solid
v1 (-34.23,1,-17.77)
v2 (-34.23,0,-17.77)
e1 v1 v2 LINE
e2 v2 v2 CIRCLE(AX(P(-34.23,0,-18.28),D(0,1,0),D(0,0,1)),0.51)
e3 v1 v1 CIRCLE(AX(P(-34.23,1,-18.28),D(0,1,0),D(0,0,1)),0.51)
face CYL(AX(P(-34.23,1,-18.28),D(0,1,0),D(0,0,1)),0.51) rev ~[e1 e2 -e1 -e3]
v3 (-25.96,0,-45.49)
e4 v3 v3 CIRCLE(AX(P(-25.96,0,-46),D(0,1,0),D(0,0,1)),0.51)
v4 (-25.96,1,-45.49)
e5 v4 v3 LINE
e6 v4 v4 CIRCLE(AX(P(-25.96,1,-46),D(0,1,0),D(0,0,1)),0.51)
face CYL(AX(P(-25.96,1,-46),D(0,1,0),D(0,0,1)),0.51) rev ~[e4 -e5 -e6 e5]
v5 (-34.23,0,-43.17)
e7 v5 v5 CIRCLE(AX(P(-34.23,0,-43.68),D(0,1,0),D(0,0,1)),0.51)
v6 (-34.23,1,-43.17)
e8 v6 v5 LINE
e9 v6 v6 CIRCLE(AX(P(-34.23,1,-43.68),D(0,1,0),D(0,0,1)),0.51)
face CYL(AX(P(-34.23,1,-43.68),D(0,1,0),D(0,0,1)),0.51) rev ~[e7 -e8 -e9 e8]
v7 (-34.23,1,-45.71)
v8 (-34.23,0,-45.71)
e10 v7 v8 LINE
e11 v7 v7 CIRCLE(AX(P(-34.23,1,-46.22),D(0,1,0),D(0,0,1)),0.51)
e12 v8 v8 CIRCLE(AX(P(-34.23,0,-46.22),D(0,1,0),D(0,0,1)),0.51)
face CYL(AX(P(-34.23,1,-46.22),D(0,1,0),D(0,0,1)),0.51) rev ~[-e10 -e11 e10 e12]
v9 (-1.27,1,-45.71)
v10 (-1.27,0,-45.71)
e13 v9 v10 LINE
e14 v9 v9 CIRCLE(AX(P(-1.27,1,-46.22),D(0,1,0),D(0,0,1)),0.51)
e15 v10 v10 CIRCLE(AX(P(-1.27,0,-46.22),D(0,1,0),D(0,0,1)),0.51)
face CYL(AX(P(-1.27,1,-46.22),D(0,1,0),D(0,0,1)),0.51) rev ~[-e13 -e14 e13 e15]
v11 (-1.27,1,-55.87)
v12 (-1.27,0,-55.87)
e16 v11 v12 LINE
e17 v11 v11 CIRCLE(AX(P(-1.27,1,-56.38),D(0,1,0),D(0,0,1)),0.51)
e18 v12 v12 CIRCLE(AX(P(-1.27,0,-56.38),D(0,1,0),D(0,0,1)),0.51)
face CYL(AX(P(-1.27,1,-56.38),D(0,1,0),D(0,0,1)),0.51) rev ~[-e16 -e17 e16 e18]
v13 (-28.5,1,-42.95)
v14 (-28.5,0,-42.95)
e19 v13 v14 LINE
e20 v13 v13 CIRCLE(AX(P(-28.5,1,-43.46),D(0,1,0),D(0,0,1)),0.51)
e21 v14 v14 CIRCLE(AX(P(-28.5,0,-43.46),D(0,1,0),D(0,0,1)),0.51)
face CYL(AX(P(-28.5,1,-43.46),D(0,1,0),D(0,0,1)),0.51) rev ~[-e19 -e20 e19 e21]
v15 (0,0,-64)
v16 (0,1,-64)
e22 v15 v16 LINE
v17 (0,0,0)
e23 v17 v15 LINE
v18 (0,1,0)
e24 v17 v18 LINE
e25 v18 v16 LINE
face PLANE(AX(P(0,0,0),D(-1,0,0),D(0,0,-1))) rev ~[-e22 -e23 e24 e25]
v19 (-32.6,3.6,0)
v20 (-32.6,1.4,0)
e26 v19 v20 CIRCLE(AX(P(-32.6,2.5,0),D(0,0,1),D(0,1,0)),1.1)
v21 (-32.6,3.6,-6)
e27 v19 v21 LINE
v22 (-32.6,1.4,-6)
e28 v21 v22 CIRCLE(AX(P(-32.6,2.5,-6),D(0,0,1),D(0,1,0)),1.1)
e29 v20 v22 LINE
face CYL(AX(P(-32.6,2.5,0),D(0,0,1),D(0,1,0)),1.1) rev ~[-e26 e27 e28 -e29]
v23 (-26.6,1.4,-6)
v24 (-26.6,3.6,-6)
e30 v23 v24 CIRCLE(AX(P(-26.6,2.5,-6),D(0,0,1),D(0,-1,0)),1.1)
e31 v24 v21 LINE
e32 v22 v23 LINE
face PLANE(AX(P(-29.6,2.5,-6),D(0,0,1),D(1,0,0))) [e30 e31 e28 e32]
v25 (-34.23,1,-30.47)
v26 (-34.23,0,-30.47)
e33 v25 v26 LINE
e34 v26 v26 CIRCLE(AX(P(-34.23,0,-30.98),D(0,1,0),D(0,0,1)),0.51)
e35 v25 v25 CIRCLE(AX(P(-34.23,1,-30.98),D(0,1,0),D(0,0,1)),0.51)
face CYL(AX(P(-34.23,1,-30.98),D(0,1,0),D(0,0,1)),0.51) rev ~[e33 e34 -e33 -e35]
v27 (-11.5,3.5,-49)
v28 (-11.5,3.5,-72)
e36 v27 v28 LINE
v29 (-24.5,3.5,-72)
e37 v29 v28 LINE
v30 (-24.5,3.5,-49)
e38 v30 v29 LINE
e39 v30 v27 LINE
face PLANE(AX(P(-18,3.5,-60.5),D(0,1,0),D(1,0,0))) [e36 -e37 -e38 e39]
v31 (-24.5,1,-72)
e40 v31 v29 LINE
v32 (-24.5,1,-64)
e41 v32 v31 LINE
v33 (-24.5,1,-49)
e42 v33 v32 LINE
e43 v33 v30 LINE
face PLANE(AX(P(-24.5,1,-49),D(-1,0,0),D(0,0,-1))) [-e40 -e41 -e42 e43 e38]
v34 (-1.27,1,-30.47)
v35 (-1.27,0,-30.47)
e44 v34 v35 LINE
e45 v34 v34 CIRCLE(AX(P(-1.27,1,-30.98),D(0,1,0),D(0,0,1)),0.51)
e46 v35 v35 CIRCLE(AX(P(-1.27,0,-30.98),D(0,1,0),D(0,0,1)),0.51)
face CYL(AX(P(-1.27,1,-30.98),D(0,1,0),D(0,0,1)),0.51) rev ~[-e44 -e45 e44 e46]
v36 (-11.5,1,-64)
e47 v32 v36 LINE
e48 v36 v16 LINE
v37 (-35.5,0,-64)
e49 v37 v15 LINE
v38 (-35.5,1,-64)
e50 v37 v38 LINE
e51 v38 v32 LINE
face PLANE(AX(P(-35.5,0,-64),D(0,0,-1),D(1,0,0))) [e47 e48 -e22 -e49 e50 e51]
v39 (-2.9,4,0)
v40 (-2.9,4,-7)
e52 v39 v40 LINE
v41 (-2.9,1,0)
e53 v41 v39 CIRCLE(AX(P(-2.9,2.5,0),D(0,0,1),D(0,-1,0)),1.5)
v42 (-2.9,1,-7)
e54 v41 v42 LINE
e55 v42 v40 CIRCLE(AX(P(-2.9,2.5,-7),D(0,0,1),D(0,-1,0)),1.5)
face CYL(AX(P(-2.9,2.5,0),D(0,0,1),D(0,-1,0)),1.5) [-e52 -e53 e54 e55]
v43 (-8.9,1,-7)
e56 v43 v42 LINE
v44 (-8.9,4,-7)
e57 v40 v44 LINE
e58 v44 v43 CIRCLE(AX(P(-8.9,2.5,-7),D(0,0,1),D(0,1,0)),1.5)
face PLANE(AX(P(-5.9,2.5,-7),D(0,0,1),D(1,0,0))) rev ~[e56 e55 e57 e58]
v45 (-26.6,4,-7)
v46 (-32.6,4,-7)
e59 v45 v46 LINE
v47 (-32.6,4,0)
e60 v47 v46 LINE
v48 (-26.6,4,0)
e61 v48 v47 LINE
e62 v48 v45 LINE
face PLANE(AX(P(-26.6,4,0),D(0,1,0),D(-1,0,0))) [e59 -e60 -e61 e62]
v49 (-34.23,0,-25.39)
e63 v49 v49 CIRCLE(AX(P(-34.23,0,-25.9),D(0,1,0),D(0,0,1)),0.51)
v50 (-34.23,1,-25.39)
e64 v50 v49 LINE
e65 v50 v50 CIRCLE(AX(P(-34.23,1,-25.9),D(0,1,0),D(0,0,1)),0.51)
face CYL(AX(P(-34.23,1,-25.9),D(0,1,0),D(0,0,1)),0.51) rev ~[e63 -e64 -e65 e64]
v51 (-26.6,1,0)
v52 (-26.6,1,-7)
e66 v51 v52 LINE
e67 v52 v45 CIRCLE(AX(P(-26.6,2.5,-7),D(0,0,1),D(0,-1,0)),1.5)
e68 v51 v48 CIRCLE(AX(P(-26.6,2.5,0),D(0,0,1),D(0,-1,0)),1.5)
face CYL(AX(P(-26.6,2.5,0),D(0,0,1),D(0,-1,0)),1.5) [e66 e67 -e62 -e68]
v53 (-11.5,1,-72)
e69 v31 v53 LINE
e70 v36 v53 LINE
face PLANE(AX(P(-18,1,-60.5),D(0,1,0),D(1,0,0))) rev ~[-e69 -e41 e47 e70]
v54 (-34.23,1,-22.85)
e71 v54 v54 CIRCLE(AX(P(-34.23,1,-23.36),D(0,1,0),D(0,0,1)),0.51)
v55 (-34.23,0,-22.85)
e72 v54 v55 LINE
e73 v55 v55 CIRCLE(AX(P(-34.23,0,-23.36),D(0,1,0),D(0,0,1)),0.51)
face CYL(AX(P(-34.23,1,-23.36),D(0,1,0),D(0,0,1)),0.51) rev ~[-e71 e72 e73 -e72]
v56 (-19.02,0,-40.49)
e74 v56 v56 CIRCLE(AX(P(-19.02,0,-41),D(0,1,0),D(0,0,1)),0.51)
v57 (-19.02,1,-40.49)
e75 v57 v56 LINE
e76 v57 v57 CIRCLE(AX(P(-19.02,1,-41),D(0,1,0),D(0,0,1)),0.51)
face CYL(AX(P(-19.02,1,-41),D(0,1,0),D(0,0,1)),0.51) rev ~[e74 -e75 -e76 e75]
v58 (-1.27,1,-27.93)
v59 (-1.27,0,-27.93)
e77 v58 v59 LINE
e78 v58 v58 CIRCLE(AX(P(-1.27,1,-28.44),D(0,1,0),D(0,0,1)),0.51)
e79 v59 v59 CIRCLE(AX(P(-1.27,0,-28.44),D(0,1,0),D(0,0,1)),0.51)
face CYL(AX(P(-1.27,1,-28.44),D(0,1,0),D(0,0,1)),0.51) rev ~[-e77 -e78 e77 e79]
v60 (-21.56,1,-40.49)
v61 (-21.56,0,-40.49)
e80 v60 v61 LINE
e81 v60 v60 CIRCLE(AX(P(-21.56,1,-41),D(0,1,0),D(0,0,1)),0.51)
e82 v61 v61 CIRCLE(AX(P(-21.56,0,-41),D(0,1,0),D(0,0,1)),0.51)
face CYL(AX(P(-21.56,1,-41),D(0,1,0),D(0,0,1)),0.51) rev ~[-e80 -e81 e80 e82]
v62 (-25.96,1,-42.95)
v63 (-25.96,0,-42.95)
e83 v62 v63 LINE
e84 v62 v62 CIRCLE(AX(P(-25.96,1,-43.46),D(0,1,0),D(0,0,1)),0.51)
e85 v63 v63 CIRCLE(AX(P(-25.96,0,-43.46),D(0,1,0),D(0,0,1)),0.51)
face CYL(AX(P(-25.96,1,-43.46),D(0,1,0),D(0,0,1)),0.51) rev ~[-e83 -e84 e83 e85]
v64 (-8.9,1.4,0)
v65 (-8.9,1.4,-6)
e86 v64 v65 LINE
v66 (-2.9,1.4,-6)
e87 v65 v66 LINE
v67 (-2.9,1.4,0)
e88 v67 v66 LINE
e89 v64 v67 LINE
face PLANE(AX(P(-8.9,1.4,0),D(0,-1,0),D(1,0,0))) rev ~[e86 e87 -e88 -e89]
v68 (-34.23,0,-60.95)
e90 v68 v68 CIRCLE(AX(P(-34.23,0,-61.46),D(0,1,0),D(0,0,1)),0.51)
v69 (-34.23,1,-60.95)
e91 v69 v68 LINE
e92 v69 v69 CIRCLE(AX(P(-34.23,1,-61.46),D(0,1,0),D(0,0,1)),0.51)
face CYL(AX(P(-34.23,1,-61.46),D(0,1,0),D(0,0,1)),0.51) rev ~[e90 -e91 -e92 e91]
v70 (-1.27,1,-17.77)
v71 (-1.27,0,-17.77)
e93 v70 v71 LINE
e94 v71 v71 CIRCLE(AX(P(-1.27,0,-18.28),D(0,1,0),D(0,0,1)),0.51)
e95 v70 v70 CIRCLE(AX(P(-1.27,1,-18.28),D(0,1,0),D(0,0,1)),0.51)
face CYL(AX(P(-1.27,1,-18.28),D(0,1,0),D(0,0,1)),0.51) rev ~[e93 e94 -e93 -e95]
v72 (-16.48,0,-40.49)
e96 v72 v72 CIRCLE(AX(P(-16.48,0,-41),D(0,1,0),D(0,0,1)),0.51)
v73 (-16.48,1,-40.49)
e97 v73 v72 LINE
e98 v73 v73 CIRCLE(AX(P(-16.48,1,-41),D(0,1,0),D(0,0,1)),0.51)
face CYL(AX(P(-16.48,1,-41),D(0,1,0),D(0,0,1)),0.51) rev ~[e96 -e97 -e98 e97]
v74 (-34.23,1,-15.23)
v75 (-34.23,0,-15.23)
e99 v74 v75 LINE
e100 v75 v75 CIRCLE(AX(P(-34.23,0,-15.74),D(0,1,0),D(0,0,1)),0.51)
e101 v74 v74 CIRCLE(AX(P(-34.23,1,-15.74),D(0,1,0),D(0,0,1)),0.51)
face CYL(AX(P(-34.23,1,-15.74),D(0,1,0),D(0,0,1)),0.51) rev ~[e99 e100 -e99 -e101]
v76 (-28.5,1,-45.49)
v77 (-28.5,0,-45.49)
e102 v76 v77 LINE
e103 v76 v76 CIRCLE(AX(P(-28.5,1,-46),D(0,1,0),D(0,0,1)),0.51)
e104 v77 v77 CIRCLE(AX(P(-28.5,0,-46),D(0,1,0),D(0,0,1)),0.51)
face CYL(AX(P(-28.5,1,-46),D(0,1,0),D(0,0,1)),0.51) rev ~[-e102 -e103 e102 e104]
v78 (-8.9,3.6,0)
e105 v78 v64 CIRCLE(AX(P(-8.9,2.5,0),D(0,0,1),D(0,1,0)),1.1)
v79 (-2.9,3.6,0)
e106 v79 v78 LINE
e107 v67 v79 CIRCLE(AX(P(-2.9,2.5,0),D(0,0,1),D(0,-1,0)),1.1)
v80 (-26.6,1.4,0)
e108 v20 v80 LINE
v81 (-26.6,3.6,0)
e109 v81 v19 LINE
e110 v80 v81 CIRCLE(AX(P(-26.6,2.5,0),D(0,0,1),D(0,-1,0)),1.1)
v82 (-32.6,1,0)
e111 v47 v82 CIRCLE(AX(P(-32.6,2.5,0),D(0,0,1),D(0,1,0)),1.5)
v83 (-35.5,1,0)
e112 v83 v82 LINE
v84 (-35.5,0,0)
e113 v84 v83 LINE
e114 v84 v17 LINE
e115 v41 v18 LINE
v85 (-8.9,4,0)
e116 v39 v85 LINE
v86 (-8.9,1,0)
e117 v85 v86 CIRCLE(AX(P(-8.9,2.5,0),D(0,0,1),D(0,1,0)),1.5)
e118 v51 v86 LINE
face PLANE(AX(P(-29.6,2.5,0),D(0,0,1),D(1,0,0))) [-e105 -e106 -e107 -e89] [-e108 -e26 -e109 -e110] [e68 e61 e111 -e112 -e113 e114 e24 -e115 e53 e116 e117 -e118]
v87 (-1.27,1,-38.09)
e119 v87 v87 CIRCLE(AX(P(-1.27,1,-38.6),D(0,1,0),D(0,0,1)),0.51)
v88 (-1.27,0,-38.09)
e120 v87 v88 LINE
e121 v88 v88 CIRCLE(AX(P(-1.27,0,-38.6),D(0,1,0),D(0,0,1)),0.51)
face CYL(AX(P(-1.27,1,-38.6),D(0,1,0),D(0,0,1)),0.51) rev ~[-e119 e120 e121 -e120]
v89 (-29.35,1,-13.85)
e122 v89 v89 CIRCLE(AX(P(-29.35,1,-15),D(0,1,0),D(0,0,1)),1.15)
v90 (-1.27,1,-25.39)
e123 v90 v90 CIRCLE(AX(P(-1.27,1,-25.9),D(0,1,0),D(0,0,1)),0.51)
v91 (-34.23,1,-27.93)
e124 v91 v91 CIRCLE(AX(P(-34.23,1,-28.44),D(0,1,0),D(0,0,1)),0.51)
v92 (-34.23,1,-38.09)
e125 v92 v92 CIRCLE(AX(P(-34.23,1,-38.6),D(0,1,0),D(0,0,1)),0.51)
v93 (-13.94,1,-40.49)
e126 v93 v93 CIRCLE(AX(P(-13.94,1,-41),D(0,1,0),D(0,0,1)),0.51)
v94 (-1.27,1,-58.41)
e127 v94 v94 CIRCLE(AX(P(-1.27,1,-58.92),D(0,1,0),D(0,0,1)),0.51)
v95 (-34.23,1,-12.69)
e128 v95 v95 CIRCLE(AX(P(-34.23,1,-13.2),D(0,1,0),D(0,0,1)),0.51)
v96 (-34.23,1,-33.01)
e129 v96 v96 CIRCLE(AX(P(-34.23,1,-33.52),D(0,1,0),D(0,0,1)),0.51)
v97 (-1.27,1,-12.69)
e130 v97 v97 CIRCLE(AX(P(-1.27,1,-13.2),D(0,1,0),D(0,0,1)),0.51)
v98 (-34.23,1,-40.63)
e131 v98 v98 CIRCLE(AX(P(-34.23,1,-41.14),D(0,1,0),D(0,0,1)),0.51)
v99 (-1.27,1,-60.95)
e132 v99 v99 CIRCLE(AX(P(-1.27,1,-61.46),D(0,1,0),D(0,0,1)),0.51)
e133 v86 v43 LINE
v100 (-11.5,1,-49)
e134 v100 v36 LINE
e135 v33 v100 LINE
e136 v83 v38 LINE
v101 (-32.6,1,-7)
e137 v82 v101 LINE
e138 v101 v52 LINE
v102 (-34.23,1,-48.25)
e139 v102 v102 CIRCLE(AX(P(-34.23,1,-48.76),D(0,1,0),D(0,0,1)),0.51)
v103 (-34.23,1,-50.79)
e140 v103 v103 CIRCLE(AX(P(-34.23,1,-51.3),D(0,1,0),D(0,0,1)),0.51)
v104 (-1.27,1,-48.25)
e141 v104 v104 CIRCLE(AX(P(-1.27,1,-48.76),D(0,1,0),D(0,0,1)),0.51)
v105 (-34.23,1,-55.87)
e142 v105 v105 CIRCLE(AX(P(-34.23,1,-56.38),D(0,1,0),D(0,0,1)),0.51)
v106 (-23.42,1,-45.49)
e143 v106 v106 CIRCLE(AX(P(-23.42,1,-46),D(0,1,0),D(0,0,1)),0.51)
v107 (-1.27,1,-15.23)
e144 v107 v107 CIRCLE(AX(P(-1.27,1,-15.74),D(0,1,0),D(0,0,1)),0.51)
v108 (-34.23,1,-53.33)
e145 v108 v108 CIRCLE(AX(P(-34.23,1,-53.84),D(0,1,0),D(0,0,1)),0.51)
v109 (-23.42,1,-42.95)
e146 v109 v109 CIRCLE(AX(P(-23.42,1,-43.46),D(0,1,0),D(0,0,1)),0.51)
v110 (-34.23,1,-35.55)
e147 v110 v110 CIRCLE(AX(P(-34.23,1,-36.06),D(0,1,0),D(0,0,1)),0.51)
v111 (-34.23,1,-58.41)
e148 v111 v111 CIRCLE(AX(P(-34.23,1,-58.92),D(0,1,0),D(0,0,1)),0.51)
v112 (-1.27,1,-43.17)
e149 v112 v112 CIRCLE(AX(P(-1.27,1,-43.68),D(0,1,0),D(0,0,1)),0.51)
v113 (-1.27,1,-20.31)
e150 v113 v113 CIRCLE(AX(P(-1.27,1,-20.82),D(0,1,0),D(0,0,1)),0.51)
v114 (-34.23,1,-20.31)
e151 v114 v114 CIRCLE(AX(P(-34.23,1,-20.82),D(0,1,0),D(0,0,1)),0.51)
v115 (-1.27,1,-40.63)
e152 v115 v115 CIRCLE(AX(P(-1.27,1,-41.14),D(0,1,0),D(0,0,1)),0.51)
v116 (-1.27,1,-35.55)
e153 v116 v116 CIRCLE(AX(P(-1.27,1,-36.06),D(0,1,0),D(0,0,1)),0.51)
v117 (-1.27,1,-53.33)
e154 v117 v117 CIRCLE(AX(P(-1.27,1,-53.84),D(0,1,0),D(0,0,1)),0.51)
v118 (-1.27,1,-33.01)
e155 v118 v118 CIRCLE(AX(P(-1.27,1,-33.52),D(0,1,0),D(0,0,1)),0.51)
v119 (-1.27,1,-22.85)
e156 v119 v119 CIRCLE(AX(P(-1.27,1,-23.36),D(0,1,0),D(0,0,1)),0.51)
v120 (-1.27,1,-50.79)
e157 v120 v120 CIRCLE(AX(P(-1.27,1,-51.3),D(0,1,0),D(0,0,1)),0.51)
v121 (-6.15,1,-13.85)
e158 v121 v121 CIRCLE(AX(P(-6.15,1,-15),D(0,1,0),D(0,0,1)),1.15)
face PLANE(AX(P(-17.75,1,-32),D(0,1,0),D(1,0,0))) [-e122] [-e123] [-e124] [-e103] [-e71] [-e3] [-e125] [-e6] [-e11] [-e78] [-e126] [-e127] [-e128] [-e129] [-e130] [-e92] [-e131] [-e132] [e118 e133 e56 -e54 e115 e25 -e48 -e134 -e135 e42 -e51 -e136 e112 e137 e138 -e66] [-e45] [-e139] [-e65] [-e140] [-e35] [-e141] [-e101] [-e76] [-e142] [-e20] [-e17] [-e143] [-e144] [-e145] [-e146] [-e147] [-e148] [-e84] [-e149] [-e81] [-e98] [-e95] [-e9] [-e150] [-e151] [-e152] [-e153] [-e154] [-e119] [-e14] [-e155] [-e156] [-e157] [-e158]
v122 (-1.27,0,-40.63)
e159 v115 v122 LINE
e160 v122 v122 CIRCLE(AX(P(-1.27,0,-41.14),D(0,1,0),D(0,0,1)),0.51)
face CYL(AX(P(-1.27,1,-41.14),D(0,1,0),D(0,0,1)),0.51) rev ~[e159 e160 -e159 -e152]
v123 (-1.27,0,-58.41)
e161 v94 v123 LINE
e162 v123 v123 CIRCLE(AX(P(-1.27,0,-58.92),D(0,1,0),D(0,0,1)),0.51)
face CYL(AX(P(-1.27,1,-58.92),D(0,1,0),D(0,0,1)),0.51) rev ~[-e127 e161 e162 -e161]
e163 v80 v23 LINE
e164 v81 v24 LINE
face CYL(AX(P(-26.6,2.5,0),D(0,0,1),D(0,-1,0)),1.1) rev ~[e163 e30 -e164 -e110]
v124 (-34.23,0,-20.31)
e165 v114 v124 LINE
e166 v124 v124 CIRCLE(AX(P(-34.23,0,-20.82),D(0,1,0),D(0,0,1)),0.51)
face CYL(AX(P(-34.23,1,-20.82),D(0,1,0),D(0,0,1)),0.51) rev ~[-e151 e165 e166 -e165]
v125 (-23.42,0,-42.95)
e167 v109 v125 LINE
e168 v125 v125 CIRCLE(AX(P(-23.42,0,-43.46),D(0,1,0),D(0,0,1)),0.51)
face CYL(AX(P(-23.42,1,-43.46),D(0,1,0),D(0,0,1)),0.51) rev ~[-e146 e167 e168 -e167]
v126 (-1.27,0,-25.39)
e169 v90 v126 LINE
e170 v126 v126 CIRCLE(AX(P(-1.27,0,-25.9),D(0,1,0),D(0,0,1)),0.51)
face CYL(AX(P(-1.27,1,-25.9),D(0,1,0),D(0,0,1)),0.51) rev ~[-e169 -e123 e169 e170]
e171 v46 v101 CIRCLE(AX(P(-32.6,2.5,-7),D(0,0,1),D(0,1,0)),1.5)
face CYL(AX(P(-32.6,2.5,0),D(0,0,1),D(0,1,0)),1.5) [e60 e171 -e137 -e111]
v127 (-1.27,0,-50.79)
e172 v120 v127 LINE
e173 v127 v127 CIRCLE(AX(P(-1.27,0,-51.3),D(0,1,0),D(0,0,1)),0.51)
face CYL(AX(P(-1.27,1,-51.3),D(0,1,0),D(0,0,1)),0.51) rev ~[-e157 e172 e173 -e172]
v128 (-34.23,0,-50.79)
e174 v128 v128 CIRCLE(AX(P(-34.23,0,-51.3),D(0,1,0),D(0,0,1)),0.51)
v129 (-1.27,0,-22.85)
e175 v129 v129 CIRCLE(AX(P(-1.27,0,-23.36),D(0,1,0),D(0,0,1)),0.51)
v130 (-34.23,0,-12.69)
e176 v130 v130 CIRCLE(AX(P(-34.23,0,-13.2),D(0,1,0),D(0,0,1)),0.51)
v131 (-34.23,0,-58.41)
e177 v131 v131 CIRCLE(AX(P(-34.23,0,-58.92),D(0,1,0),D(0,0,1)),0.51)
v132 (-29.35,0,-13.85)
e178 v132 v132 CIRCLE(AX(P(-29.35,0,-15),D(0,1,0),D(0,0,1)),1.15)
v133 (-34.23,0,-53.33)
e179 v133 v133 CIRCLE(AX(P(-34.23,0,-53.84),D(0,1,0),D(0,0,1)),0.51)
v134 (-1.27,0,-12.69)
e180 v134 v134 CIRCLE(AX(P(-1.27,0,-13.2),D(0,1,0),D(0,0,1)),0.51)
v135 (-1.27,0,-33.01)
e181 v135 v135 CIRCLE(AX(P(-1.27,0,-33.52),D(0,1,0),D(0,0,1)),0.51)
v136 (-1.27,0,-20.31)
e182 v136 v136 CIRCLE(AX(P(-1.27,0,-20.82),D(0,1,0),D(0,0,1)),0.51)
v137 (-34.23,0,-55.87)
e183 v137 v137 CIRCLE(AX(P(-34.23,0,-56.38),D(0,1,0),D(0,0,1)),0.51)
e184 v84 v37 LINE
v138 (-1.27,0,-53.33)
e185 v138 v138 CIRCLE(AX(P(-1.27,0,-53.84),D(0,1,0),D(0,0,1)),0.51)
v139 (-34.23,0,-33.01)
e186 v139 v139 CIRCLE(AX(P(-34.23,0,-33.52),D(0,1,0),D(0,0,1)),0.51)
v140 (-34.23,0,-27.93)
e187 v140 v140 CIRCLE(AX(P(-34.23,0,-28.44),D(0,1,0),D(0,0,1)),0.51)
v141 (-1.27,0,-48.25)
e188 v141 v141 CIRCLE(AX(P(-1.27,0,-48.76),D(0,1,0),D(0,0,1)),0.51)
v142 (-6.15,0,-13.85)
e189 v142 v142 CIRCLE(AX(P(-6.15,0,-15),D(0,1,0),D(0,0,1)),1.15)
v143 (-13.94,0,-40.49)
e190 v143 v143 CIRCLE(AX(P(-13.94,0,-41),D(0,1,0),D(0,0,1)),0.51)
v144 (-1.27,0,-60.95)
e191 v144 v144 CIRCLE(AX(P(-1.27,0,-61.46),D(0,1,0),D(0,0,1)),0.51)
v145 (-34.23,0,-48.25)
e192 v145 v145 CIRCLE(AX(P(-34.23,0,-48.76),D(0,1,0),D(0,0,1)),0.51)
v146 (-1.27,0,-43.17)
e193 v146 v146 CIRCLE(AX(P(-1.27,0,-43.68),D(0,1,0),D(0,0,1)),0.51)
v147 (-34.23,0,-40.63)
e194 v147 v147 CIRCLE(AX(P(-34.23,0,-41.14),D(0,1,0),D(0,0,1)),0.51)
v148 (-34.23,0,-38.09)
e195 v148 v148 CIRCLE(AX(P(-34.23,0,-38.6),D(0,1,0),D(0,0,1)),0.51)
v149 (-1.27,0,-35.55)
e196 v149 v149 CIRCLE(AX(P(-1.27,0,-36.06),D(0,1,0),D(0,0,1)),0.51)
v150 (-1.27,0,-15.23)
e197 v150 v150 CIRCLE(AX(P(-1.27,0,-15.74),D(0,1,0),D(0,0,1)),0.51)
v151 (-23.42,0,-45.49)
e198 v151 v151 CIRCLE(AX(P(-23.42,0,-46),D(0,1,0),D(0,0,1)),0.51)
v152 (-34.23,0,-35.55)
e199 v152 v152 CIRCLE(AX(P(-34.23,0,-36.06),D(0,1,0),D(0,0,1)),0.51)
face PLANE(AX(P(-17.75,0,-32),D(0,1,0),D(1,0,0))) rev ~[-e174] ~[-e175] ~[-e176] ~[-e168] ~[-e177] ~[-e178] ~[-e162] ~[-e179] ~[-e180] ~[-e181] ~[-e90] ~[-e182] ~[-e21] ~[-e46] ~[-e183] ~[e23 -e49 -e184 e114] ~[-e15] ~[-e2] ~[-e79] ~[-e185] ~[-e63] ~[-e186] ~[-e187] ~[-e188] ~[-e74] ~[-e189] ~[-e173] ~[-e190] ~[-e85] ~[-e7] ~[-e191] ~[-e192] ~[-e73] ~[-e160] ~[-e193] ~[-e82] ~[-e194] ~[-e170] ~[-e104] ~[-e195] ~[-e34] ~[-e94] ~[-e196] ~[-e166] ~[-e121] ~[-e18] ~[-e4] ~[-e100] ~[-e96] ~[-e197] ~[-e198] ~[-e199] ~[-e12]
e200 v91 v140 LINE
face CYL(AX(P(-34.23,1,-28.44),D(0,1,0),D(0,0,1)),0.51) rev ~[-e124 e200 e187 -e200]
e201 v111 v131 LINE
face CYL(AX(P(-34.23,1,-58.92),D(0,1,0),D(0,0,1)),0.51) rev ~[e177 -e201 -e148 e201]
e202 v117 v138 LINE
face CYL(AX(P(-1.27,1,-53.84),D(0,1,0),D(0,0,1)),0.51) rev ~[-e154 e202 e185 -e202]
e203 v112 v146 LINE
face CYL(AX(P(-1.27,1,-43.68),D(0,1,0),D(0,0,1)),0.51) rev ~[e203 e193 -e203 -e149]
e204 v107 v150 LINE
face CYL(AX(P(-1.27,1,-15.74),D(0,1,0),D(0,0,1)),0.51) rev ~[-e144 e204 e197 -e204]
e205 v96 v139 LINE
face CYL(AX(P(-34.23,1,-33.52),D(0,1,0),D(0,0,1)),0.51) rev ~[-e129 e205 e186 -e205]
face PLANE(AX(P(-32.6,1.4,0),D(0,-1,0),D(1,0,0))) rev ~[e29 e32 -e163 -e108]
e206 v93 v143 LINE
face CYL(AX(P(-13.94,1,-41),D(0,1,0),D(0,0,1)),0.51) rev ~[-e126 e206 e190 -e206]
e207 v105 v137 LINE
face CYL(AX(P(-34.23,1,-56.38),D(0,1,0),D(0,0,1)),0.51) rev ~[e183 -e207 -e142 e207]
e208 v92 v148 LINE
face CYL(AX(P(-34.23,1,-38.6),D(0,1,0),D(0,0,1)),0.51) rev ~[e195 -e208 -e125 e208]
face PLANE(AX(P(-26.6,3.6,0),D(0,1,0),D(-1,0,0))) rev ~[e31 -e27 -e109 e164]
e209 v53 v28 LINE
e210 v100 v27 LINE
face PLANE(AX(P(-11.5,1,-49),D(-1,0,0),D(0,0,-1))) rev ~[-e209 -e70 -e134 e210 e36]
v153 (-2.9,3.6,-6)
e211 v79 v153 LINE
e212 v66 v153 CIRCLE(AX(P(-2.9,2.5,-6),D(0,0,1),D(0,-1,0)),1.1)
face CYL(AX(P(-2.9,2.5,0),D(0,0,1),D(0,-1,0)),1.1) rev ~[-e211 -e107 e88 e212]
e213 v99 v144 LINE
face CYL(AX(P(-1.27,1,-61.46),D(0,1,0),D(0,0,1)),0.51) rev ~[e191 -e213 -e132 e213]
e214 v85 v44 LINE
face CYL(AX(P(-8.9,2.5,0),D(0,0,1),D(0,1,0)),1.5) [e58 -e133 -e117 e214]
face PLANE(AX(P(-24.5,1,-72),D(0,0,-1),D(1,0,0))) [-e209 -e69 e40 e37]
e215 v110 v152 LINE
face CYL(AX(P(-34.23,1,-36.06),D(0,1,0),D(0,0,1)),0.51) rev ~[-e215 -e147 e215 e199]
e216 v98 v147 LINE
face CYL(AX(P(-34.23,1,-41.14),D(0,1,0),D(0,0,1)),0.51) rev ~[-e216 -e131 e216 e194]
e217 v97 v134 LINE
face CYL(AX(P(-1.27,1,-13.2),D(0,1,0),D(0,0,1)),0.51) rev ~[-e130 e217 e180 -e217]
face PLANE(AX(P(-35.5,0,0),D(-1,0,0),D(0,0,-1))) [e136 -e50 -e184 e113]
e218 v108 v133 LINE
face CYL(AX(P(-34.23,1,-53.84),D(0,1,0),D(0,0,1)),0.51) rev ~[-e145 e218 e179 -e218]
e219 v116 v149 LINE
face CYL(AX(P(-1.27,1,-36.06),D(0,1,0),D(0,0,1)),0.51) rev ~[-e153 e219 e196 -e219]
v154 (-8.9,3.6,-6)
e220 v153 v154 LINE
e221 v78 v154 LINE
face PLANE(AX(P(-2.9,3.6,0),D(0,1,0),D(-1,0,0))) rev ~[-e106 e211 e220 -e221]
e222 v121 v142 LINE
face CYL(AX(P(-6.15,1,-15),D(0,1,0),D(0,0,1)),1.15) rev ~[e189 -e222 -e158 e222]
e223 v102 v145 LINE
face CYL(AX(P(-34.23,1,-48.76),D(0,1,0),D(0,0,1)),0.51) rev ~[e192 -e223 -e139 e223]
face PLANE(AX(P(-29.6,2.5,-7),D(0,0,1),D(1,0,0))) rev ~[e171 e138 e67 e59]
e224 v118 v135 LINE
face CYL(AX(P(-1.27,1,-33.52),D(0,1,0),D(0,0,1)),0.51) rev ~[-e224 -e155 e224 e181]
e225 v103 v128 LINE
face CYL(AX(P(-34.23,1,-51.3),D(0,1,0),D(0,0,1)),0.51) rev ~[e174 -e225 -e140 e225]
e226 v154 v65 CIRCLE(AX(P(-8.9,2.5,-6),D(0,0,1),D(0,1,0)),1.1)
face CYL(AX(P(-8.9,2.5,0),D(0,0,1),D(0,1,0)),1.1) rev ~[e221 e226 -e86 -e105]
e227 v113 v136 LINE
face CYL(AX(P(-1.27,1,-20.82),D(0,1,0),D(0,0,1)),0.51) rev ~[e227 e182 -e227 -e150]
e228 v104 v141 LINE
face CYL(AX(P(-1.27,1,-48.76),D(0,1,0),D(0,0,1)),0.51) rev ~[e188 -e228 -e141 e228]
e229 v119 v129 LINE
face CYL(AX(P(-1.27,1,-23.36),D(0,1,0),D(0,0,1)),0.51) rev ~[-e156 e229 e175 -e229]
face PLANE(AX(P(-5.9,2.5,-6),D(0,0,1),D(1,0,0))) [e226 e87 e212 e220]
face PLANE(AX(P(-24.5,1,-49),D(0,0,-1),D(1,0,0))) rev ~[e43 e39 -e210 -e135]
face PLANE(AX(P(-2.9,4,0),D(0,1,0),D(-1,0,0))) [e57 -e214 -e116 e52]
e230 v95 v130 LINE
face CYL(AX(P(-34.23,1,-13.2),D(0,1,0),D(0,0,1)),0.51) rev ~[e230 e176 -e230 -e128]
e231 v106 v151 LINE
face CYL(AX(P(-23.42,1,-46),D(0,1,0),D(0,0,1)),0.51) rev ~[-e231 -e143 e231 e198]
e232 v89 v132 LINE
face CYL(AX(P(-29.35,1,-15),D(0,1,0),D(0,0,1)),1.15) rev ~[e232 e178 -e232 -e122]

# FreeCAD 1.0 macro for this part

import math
import FreeCAD as App
import Part
import Sketcher

doc = App.newDocument("Part")
body = doc.addObject("PartDesign::Body", "Body")

# Sketch on XZ plane
sketch1 = body.newObject("Sketcher::SketchObject", "Sketch")
sketch1.AttachmentSupport = (doc.getObject("XZ_Plane"), [""])
sketch1.MapMode = "FlatFace"
sketch1.addGeometry([
    Part.LineSegment(App.Vector(-36, -64, 0), App.Vector(-36, 0, 0)),
    Part.LineSegment(App.Vector(-36, 0, 0), App.Vector(0, 0, 0)),
    Part.LineSegment(App.Vector(0, 0, 0), App.Vector(0, -64, 0)),
    Part.LineSegment(App.Vector(0, -64, 0), App.Vector(-36, -64, 0)),
], False)
sketch1.addConstraint([
    Sketcher.Constraint("Coincident", 0, 2, 1, 1),
    Sketcher.Constraint("Coincident", 1, 2, 2, 1),
    Sketcher.Constraint("Coincident", 2, 2, 3, 1),
    Sketcher.Constraint("Coincident", 3, 2, 0, 1),
    Sketcher.Constraint("Vertical", 0),
    Sketcher.Constraint("Horizontal", 1),
    Sketcher.Constraint("Vertical", 2),
    Sketcher.Constraint("Horizontal", 3),
    Sketcher.Constraint("Coincident", 1, 2, -1, 1),
    Sketcher.Constraint("DistanceY", 0, 1, 0, 2, 64.0),
    Sketcher.Constraint("DistanceX", 1, 1, 1, 2, 35.5),
])
pad1 = body.newObject("PartDesign::Pad", "Pad")
pad1.Profile = sketch1
pad1.Length = 1
pad1.Reversed = True

# Sketch on XZ plane
sketch2 = body.newObject("Sketcher::SketchObject", "Sketch001")
sketch2.AttachmentSupport = (doc.getObject("XZ_Plane"), [""])
sketch2.MapMode = "FlatFace"
sketch2.AttachmentOffset = App.Placement(App.Vector(0, 0, -1), App.Rotation())
sketch2.addGeometry([
    Part.LineSegment(App.Vector(-24, -72, 0), App.Vector(-24, -49, 0)),
    Part.LineSegment(App.Vector(-24, -49, 0), App.Vector(-12, -49, 0)),
    Part.LineSegment(App.Vector(-12, -49, 0), App.Vector(-12, -72, 0)),
    Part.LineSegment(App.Vector(-12, -72, 0), App.Vector(-24, -72, 0)),
], False)
sketch2.addConstraint([
    Sketcher.Constraint("Coincident", 0, 2, 1, 1),
    Sketcher.Constraint("Coincident", 1, 2, 2, 1),
    Sketcher.Constraint("Coincident", 2, 2, 3, 1),
    Sketcher.Constraint("Coincident", 3, 2, 0, 1),
    Sketcher.Constraint("Vertical", 0),
    Sketcher.Constraint("Horizontal", 1),
    Sketcher.Constraint("Vertical", 2),
    Sketcher.Constraint("Horizontal", 3),
    Sketcher.Constraint("DistanceX", 1, 1, 1, 2, 13.0),
    Sketcher.Constraint("DistanceY", 0, 1, 0, 2, 23.0),
    Sketcher.Constraint("DistanceY", 0, 2, -1, 1, 49.0),
    Sketcher.Constraint("DistanceX", 0, 2, -1, 1, 24.5),
])
pad2 = body.newObject("PartDesign::Pad", "Pad001")
pad2.Profile = sketch2
pad2.Length = 2.5
pad2.Reversed = True

# Sketch on XZ plane
sketch3 = body.newObject("Sketcher::SketchObject", "Sketch002")
sketch3.AttachmentSupport = (doc.getObject("XZ_Plane"), [""])
sketch3.MapMode = "FlatFace"
sketch3.AttachmentOffset = App.Placement(App.Vector(0, 0, -1), App.Rotation())
sketch3.addGeometry([
    Part.Circle(App.Vector(-1.3, -61.5, 0), App.Vector(0, 0, 1), 0.5),  # 0
    Part.Circle(App.Vector(-1.3, -58.9, 0), App.Vector(0, 0, 1), 0.5),  # 1
    Part.Circle(App.Vector(-1.3, -56.4, 0), App.Vector(0, 0, 1), 0.5),  # 2
    Part.Circle(App.Vector(-1.3, -53.8, 0), App.Vector(0, 0, 1), 0.5),  # 3
    Part.Circle(App.Vector(-1.3, -51.3, 0), App.Vector(0, 0, 1), 0.5),  # 4
    Part.Circle(App.Vector(-1.3, -48.8, 0), App.Vector(0, 0, 1), 0.5),  # 5
    Part.Circle(App.Vector(-1.3, -46.2, 0), App.Vector(0, 0, 1), 0.5),  # 6
    Part.Circle(App.Vector(-1.3, -43.7, 0), App.Vector(0, 0, 1), 0.5),  # 7
    Part.Circle(App.Vector(-1.3, -41.1, 0), App.Vector(0, 0, 1), 0.5),  # 8
    Part.Circle(App.Vector(-1.3, -38.6, 0), App.Vector(0, 0, 1), 0.5),  # 9
    Part.Circle(App.Vector(-1.3, -36.1, 0), App.Vector(0, 0, 1), 0.5),  # 10
    Part.Circle(App.Vector(-1.3, -33.5, 0), App.Vector(0, 0, 1), 0.5),  # 11
    Part.Circle(App.Vector(-1.3, -31, 0), App.Vector(0, 0, 1), 0.5),  # 12
    Part.Circle(App.Vector(-1.3, -28.4, 0), App.Vector(0, 0, 1), 0.5),  # 13
    Part.Circle(App.Vector(-1.3, -25.9, 0), App.Vector(0, 0, 1), 0.5),  # 14
    Part.Circle(App.Vector(-1.3, -23.4, 0), App.Vector(0, 0, 1), 0.5),  # 15
    Part.Circle(App.Vector(-1.3, -20.8, 0), App.Vector(0, 0, 1), 0.5),  # 16
    Part.Circle(App.Vector(-1.3, -18.3, 0), App.Vector(0, 0, 1), 0.5),  # 17
    Part.Circle(App.Vector(-1.3, -15.7, 0), App.Vector(0, 0, 1), 0.5),  # 18
    Part.Circle(App.Vector(-1.3, -13.2, 0), App.Vector(0, 0, 1), 0.5),  # 19
    Part.Circle(App.Vector(-34.2, -61.5, 0), App.Vector(0, 0, 1), 0.5),  # 20
    Part.Circle(App.Vector(-34.2, -58.9, 0), App.Vector(0, 0, 1), 0.5),  # 21
    Part.Circle(App.Vector(-34.2, -56.4, 0), App.Vector(0, 0, 1), 0.5),  # 22
    Part.Circle(App.Vector(-34.2, -53.8, 0), App.Vector(0, 0, 1), 0.5),  # 23
    Part.Circle(App.Vector(-34.2, -51.3, 0), App.Vector(0, 0, 1), 0.5),  # 24
    Part.Circle(App.Vector(-34.2, -48.8, 0), App.Vector(0, 0, 1), 0.5),  # 25
    Part.Circle(App.Vector(-34.2, -46.2, 0), App.Vector(0, 0, 1), 0.5),  # 26
    Part.Circle(App.Vector(-34.2, -43.7, 0), App.Vector(0, 0, 1), 0.5),  # 27
    Part.Circle(App.Vector(-34.2, -41.1, 0), App.Vector(0, 0, 1), 0.5),  # 28
    Part.Circle(App.Vector(-34.2, -38.6, 0), App.Vector(0, 0, 1), 0.5),  # 29
    Part.Circle(App.Vector(-34.2, -36.1, 0), App.Vector(0, 0, 1), 0.5),  # 30
    Part.Circle(App.Vector(-34.2, -33.5, 0), App.Vector(0, 0, 1), 0.5),  # 31
    Part.Circle(App.Vector(-34.2, -31, 0), App.Vector(0, 0, 1), 0.5),  # 32
    Part.Circle(App.Vector(-34.2, -28.4, 0), App.Vector(0, 0, 1), 0.5),  # 33
    Part.Circle(App.Vector(-34.2, -25.9, 0), App.Vector(0, 0, 1), 0.5),  # 34
    Part.Circle(App.Vector(-34.2, -23.4, 0), App.Vector(0, 0, 1), 0.5),  # 35
    Part.Circle(App.Vector(-34.2, -20.8, 0), App.Vector(0, 0, 1), 0.5),  # 36
    Part.Circle(App.Vector(-34.2, -18.3, 0), App.Vector(0, 0, 1), 0.5),  # 37
    Part.Circle(App.Vector(-34.2, -15.7, 0), App.Vector(0, 0, 1), 0.5),  # 38
    Part.Circle(App.Vector(-34.2, -13.2, 0), App.Vector(0, 0, 1), 0.5),  # 39
    Part.Circle(App.Vector(-21.6, -41, 0), App.Vector(0, 0, 1), 0.5),  # 40
    Part.Circle(App.Vector(-19, -41, 0), App.Vector(0, 0, 1), 0.5),  # 41
    Part.Circle(App.Vector(-16.5, -41, 0), App.Vector(0, 0, 1), 0.5),  # 42
    Part.Circle(App.Vector(-13.9, -41, 0), App.Vector(0, 0, 1), 0.5),  # 43
    Part.Circle(App.Vector(-28.5, -46, 0), App.Vector(0, 0, 1), 0.5),  # 44
    Part.Circle(App.Vector(-26, -46, 0), App.Vector(0, 0, 1), 0.5),  # 45
    Part.Circle(App.Vector(-23.4, -46, 0), App.Vector(0, 0, 1), 0.5),  # 46
    Part.Circle(App.Vector(-28.5, -43.5, 0), App.Vector(0, 0, 1), 0.5),  # 47
    Part.Circle(App.Vector(-26, -43.5, 0), App.Vector(0, 0, 1), 0.5),  # 48
    Part.Circle(App.Vector(-23.4, -43.5, 0), App.Vector(0, 0, 1), 0.5),  # 49
], False)
sketch3.addConstraint([
    Sketcher.Constraint("Equal", 0, 1),
    Sketcher.Constraint("Equal", 1, 2),
    Sketcher.Constraint("Equal", 2, 3),
    Sketcher.Constraint("Equal", 3, 4),
    Sketcher.Constraint("Equal", 4, 5),
    Sketcher.Constraint("Equal", 5, 6),
    Sketcher.Constraint("Equal", 6, 7),
    Sketcher.Constraint("Equal", 7, 8),
    Sketcher.Constraint("Equal", 8, 9),
    Sketcher.Constraint("Equal", 9, 10),
    Sketcher.Constraint("Equal", 10, 11),
    Sketcher.Constraint("Equal", 11, 12),
    Sketcher.Constraint("Equal", 12, 13),
    Sketcher.Constraint("Equal", 13, 14),
    Sketcher.Constraint("Equal", 14, 15),
    Sketcher.Constraint("Equal", 15, 16),
    Sketcher.Constraint("Equal", 16, 17),
    Sketcher.Constraint("Equal", 17, 18),
    Sketcher.Constraint("Equal", 18, 19),
    Sketcher.Constraint("Equal", 19, 20),
    Sketcher.Constraint("Equal", 20, 21),
    Sketcher.Constraint("Equal", 21, 22),
    Sketcher.Constraint("Equal", 22, 23),
    Sketcher.Constraint("Equal", 23, 24),
    Sketcher.Constraint("Equal", 24, 25),
    Sketcher.Constraint("Equal", 25, 26),
    Sketcher.Constraint("Equal", 26, 27),
    Sketcher.Constraint("Equal", 27, 28),
    Sketcher.Constraint("Equal", 28, 29),
    Sketcher.Constraint("Equal", 29, 30),
    Sketcher.Constraint("Equal", 30, 31),
    Sketcher.Constraint("Equal", 31, 32),
    Sketcher.Constraint("Equal", 32, 33),
    Sketcher.Constraint("Equal", 33, 34),
    Sketcher.Constraint("Equal", 34, 35),
    Sketcher.Constraint("Equal", 35, 36),
    Sketcher.Constraint("Equal", 36, 37),
    Sketcher.Constraint("Equal", 37, 38),
    Sketcher.Constraint("Equal", 38, 39),
    Sketcher.Constraint("Equal", 39, 40),
    Sketcher.Constraint("Equal", 40, 41),
    Sketcher.Constraint("Equal", 41, 42),
    Sketcher.Constraint("Equal", 42, 43),
    Sketcher.Constraint("Equal", 43, 44),
    Sketcher.Constraint("Equal", 44, 45),
    Sketcher.Constraint("Equal", 45, 46),
    Sketcher.Constraint("Equal", 46, 47),
    Sketcher.Constraint("Equal", 47, 48),
    Sketcher.Constraint("Equal", 48, 49),
    Sketcher.Constraint("Horizontal", 0, 3, 20, 3),
    Sketcher.Constraint("Horizontal", 1, 3, 21, 3),
    Sketcher.Constraint("Horizontal", 2, 3, 22, 3),
    Sketcher.Constraint("Horizontal", 3, 3, 23, 3),
    Sketcher.Constraint("Horizontal", 4, 3, 24, 3),
    Sketcher.Constraint("Horizontal", 5, 3, 25, 3),
    Sketcher.Constraint("Horizontal", 6, 3, 26, 3),
    Sketcher.Constraint("Horizontal", 7, 3, 27, 3),
    Sketcher.Constraint("Horizontal", 8, 3, 28, 3),
    Sketcher.Constraint("Horizontal", 9, 3, 29, 3),
    Sketcher.Constraint("Horizontal", 10, 3, 30, 3),
    Sketcher.Constraint("Horizontal", 11, 3, 31, 3),
    Sketcher.Constraint("Horizontal", 12, 3, 32, 3),
    Sketcher.Constraint("Horizontal", 13, 3, 33, 3),
    Sketcher.Constraint("Horizontal", 14, 3, 34, 3),
    Sketcher.Constraint("Horizontal", 15, 3, 35, 3),
    Sketcher.Constraint("Horizontal", 16, 3, 36, 3),
    Sketcher.Constraint("Horizontal", 17, 3, 37, 3),
    Sketcher.Constraint("Horizontal", 18, 3, 38, 3),
    Sketcher.Constraint("Horizontal", 19, 3, 39, 3),
    Sketcher.Constraint("Horizontal", 40, 3, 41, 3),
    Sketcher.Constraint("Horizontal", 41, 3, 42, 3),
    Sketcher.Constraint("Horizontal", 42, 3, 43, 3),
    Sketcher.Constraint("Horizontal", 44, 3, 45, 3),
    Sketcher.Constraint("Horizontal", 45, 3, 46, 3),
    Sketcher.Constraint("Horizontal", 47, 3, 48, 3),
    Sketcher.Constraint("Horizontal", 48, 3, 49, 3),
    Sketcher.Constraint("Vertical", 0, 3, 1, 3),
    Sketcher.Constraint("Vertical", 1, 3, 2, 3),
    Sketcher.Constraint("Vertical", 2, 3, 3, 3),
    Sketcher.Constraint("Vertical", 3, 3, 4, 3),
    Sketcher.Constraint("Vertical", 4, 3, 5, 3),
    Sketcher.Constraint("Vertical", 5, 3, 6, 3),
    Sketcher.Constraint("Vertical", 6, 3, 7, 3),
    Sketcher.Constraint("Vertical", 7, 3, 8, 3),
    Sketcher.Constraint("Vertical", 8, 3, 9, 3),
    Sketcher.Constraint("Vertical", 9, 3, 10, 3),
    Sketcher.Constraint("Vertical", 10, 3, 11, 3),
    Sketcher.Constraint("Vertical", 11, 3, 12, 3),
    Sketcher.Constraint("Vertical", 12, 3, 13, 3),
    Sketcher.Constraint("Vertical", 13, 3, 14, 3),
    Sketcher.Constraint("Vertical", 14, 3, 15, 3),
    Sketcher.Constraint("Vertical", 15, 3, 16, 3),
    Sketcher.Constraint("Vertical", 16, 3, 17, 3),
    Sketcher.Constraint("Vertical", 17, 3, 18, 3),
    Sketcher.Constraint("Vertical", 18, 3, 19, 3),
    Sketcher.Constraint("Vertical", 20, 3, 21, 3),
    Sketcher.Constraint("Vertical", 21, 3, 22, 3),
    Sketcher.Constraint("Vertical", 22, 3, 23, 3),
    Sketcher.Constraint("Vertical", 23, 3, 24, 3),
    Sketcher.Constraint("Vertical", 24, 3, 25, 3),
    Sketcher.Constraint("Vertical", 25, 3, 26, 3),
    Sketcher.Constraint("Vertical", 26, 3, 27, 3),
    Sketcher.Constraint("Vertical", 27, 3, 28, 3),
    Sketcher.Constraint("Vertical", 28, 3, 29, 3),
    Sketcher.Constraint("Vertical", 29, 3, 30, 3),
    Sketcher.Constraint("Vertical", 30, 3, 31, 3),
    Sketcher.Constraint("Vertical", 31, 3, 32, 3),
    Sketcher.Constraint("Vertical", 32, 3, 33, 3),
    Sketcher.Constraint("Vertical", 33, 3, 34, 3),
    Sketcher.Constraint("Vertical", 34, 3, 35, 3),
    Sketcher.Constraint("Vertical", 35, 3, 36, 3),
    Sketcher.Constraint("Vertical", 36, 3, 37, 3),
    Sketcher.Constraint("Vertical", 37, 3, 38, 3),
    Sketcher.Constraint("Vertical", 38, 3, 39, 3),
    Sketcher.Constraint("Vertical", 44, 3, 47, 3),
    Sketcher.Constraint("Vertical", 45, 3, 48, 3),
    Sketcher.Constraint("Vertical", 46, 3, 49, 3),
    Sketcher.Constraint("Diameter", 0, 1.02),
    Sketcher.Constraint("DistanceY", 40, 3, -1, 1, 41.0),
    Sketcher.Constraint("DistanceY", 44, 3, -1, 1, 46.0),
    Sketcher.Constraint("DistanceY", 4, 3, -1, 1, 51.3),
    Sketcher.Constraint("DistanceY", 9, 3, -1, 1, 38.6),
    Sketcher.Constraint("DistanceY", 14, 3, -1, 1, 25.9),
    Sketcher.Constraint("DistanceY", 19, 3, -1, 1, 13.2),
    Sketcher.Constraint("DistanceX", 44, 3, -1, 1, 28.5),
    Sketcher.Constraint("DistanceY", 0, 3, 5, 3, 12.7),
    Sketcher.Constraint("DistanceY", 1, 3, 6, 3, 12.7),
    Sketcher.Constraint("DistanceY", 2, 3, 7, 3, 12.7),
    Sketcher.Constraint("DistanceY", 3, 3, 8, 3, 12.7),
    Sketcher.Constraint("DistanceY", 5, 3, 10, 3, 12.7),
    Sketcher.Constraint("DistanceY", 6, 3, 11, 3, 12.7),
    Sketcher.Constraint("DistanceY", 7, 3, 12, 3, 12.7),
    Sketcher.Constraint("DistanceY", 8, 3, 13, 3, 12.7),
    Sketcher.Constraint("DistanceY", 10, 3, 15, 3, 12.7),
    Sketcher.Constraint("DistanceY", 11, 3, 16, 3, 12.7),
    Sketcher.Constraint("DistanceY", 12, 3, 17, 3, 12.7),
    Sketcher.Constraint("DistanceY", 13, 3, 18, 3, 12.7),
    Sketcher.Constraint("DistanceX", 45, 3, 40, 3, 4.4),
    Sketcher.Constraint("DistanceX", 46, 3, 41, 3, 4.4),
    Sketcher.Constraint("DistanceX", 0, 3, -1, 1, 1.27),
    Sketcher.Constraint("DistanceY", 0, 3, -1, 1, 61.46),
    Sketcher.Constraint("DistanceY", 1, 3, -1, 1, 58.92),
    Sketcher.Constraint("DistanceY", 2, 3, -1, 1, 56.38),
    Sketcher.Constraint("DistanceY", 3, 3, -1, 1, 53.84),
    Sketcher.Constraint("DistanceX", 20, 3, -1, 1, 34.23),
    Sketcher.Constraint("DistanceX", 40, 3, -1, 1, 21.56),
    Sketcher.Constraint("DistanceX", 41, 3, -1, 1, 19.02),
    Sketcher.Constraint("DistanceX", 42, 3, -1, 1, 16.48),
    Sketcher.Constraint("DistanceX", 43, 3, -1, 1, 13.94),
    Sketcher.Constraint("DistanceY", 47, 3, -1, 1, 43.46),
])
pocket1 = body.newObject("PartDesign::Pocket", "Pocket")
pocket1.Profile = sketch3
pocket1.Length = 2.5
pocket1.Reversed = True

# Sketch on XY plane
sketch4 = body.newObject("Sketcher::SketchObject", "Sketch003")
sketch4.AttachmentSupport = (doc.getObject("XY_Plane"), [""])
sketch4.MapMode = "FlatFace"
sketch4.addGeometry([
    Part.LineSegment(App.Vector(-26.6, 4, 0), App.Vector(-32.6, 4, 0)),  # 0
    Part.ArcOfCircle(Part.Circle(App.Vector(-32.6, 2.5, 0), App.Vector(0, 0, 1), 1.5), math.radians(90), math.radians(270)),  # 1
    Part.LineSegment(App.Vector(-32.6, 1, 0), App.Vector(-26.6, 1, 0)),  # 2
    Part.ArcOfCircle(Part.Circle(App.Vector(-26.6, 2.5, 0), App.Vector(0, 0, 1), 1.5), math.radians(-90), math.radians(90)),  # 3
    Part.ArcOfCircle(Part.Circle(App.Vector(-8.9, 2.5, 0), App.Vector(0, 0, 1), 1.5), math.radians(90), math.radians(270)),  # 4
    Part.LineSegment(App.Vector(-8.9, 1, 0), App.Vector(-2.9, 1, 0)),  # 5
    Part.ArcOfCircle(Part.Circle(App.Vector(-2.9, 2.5, 0), App.Vector(0, 0, 1), 1.5), math.radians(-90), math.radians(90)),  # 6
    Part.LineSegment(App.Vector(-2.9, 4, 0), App.Vector(-8.9, 4, 0)),  # 7
], False)
sketch4.addConstraint([
    Sketcher.Constraint("Tangent", 0, 2, 1, 1),
    Sketcher.Constraint("Tangent", 1, 2, 2, 1),
    Sketcher.Constraint("Tangent", 2, 2, 3, 1),
    Sketcher.Constraint("Tangent", 3, 2, 0, 1),
    Sketcher.Constraint("Tangent", 4, 2, 5, 1),
    Sketcher.Constraint("Tangent", 5, 2, 6, 1),
    Sketcher.Constraint("Tangent", 6, 2, 7, 1),
    Sketcher.Constraint("Tangent", 7, 2, 4, 1),
    Sketcher.Constraint("Horizontal", 0),
    Sketcher.Constraint("Horizontal", 2),
    Sketcher.Constraint("Horizontal", 5),
    Sketcher.Constraint("Horizontal", 7),
    Sketcher.Constraint("Equal", 3, 4),
    Sketcher.Constraint("Horizontal", 3, 3, 4, 3),
    Sketcher.Constraint("Equal", 2, 5),
    Sketcher.Constraint("Radius", 1, 1.5),
    Sketcher.Constraint("DistanceX", 0, 2, 0, 1, 6.0),
    Sketcher.Constraint("DistanceY", -1, 1, 0, 2, 4.0),
    Sketcher.Constraint("DistanceX", 1, 3, -1, 1, 32.6),
    Sketcher.Constraint("DistanceX", 4, 3, -1, 1, 8.9),
])
pad3 = body.newObject("PartDesign::Pad", "Pad002")
pad3.Profile = sketch4
pad3.Length = 7
pad3.Reversed = True

# Sketch on XY plane
sketch5 = body.newObject("Sketcher::SketchObject", "Sketch004")
sketch5.AttachmentSupport = (doc.getObject("XY_Plane"), [""])
sketch5.MapMode = "FlatFace"
sketch5.addGeometry([
    Part.LineSegment(App.Vector(-32.6, 1.4, 0), App.Vector(-26.6, 1.4, 0)),  # 0
    Part.ArcOfCircle(Part.Circle(App.Vector(-26.6, 2.5, 0), App.Vector(0, 0, 1), 1.1), math.radians(-90), math.radians(90)),  # 1
    Part.LineSegment(App.Vector(-26.6, 3.6, 0), App.Vector(-32.6, 3.6, 0)),  # 2
    Part.ArcOfCircle(Part.Circle(App.Vector(-32.6, 2.5, 0), App.Vector(0, 0, 1), 1.1), math.radians(90), math.radians(270)),  # 3
    Part.LineSegment(App.Vector(-8.9, 1.4, 0), App.Vector(-2.9, 1.4, 0)),  # 4
    Part.ArcOfCircle(Part.Circle(App.Vector(-2.9, 2.5, 0), App.Vector(0, 0, 1), 1.1), math.radians(-90), math.radians(90)),  # 5
    Part.LineSegment(App.Vector(-2.9, 3.6, 0), App.Vector(-8.9, 3.6, 0)),  # 6
    Part.ArcOfCircle(Part.Circle(App.Vector(-8.9, 2.5, 0), App.Vector(0, 0, 1), 1.1), math.radians(90), math.radians(270)),  # 7
], False)
sketch5.addConstraint([
    Sketcher.Constraint("Tangent", 0, 2, 1, 1),
    Sketcher.Constraint("Tangent", 1, 2, 2, 1),
    Sketcher.Constraint("Tangent", 2, 2, 3, 1),
    Sketcher.Constraint("Tangent", 3, 2, 0, 1),
    Sketcher.Constraint("Tangent", 4, 2, 5, 1),
    Sketcher.Constraint("Tangent", 5, 2, 6, 1),
    Sketcher.Constraint("Tangent", 6, 2, 7, 1),
    Sketcher.Constraint("Tangent", 7, 2, 4, 1),
    Sketcher.Constraint("Horizontal", 0),
    Sketcher.Constraint("Horizontal", 2),
    Sketcher.Constraint("Horizontal", 4),
    Sketcher.Constraint("Horizontal", 6),
    Sketcher.Constraint("Equal", 3, 5),
    Sketcher.Constraint("Horizontal", 3, 3, 5, 3),
    Sketcher.Constraint("Equal", 2, 4),
    Sketcher.Constraint("Radius", 1, 1.1),
    Sketcher.Constraint("DistanceX", 0, 1, 0, 2, 6.0),
    Sketcher.Constraint("DistanceX", 1, 3, -1, 1, 26.6),
    Sketcher.Constraint("DistanceY", -1, 1, 1, 3, 2.5),
    Sketcher.Constraint("DistanceX", 5, 3, -1, 1, 2.9),
])
pocket2 = body.newObject("PartDesign::Pocket", "Pocket001")
pocket2.Profile = sketch5
pocket2.Length = 6

# Sketch on XZ plane
sketch6 = body.newObject("Sketcher::SketchObject", "Sketch005")
sketch6.AttachmentSupport = (doc.getObject("XZ_Plane"), [""])
sketch6.MapMode = "FlatFace"
sketch6.AttachmentOffset = App.Placement(App.Vector(0, 0, -1), App.Rotation())
sketch6.addGeometry([
    Part.Circle(App.Vector(-29.4, -15, 0), App.Vector(0, 0, 1), 1.1),
    Part.Circle(App.Vector(-6.2, -15, 0), App.Vector(0, 0, 1), 1.1),
], False)
sketch6.addConstraint([
    Sketcher.Constraint("Equal", 0, 1),
    Sketcher.Constraint("Horizontal", 0, 3, 1, 3),
    Sketcher.Constraint("Diameter", 0, 2.3),
    Sketcher.Constraint("DistanceY", 0, 3, -1, 1, 15.0),
    Sketcher.Constraint("DistanceX", 0, 3, 1, 3, 23.2),
    Sketcher.Constraint("DistanceX", 0, 3, -1, 1, 29.35),
])
pocket3 = body.newObject("PartDesign::Pocket", "Pocket002")
pocket3.Profile = sketch6
pocket3.Length = 6
pocket3.Reversed = True

doc.recompute()
